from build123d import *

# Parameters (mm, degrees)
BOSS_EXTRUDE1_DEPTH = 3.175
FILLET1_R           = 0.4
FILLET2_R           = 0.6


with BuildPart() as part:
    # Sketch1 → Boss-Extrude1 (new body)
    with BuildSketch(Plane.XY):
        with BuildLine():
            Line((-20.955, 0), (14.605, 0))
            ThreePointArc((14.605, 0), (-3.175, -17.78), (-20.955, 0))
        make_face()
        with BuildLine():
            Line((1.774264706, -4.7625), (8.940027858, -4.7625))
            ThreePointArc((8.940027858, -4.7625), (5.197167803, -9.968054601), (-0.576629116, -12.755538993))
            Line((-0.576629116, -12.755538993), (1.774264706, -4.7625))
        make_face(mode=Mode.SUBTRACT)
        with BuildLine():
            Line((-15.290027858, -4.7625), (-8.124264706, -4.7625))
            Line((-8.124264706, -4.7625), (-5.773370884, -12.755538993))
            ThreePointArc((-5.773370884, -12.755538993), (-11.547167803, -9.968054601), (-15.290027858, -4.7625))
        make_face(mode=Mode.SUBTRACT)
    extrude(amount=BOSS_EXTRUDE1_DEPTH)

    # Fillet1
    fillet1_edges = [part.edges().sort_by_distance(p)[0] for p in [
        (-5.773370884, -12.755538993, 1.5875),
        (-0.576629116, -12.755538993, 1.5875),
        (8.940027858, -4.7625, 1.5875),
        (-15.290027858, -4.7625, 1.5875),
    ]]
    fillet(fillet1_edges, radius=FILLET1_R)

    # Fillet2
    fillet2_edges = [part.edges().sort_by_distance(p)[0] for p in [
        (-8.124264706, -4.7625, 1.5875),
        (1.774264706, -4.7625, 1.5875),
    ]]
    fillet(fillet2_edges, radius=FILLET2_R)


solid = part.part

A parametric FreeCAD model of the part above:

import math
import FreeCAD as App
import Part
import Sketcher
Q = App.Units.Quantity


def edges_at(feature, points):
    """Names of the edges that pass closest to the given points."""
    edges = feature.Shape.Edges
    near = lambda p: min(range(len(edges)), key=lambda i: edges[i].distToShape(Part.Vertex(*p))[0])
    return sorted({f"Edge{near(p) + 1}" for p in points})

doc = App.newDocument("Part")
params = doc.addObject("Spreadsheet::Sheet", "Params")
for row, (alias, value) in enumerate([
    ("sketch1_radius", "0.7 in"),
    ("pad1_length", "0.125 in"),
    ("fillet_radius", "0.4 mm"),
    ("fillet2_radius", "0.6 mm"),
], start=1):
    params.set(f"A{row}", alias)
    params.set(f"B{row}", "=" + value)
    params.setAlias(f"B{row}", alias)

body = doc.addObject("PartDesign::Body", "Body")

# Sketch on XY plane
sketch1 = body.newObject("Sketcher::SketchObject", "Sketch")
sketch1.AttachmentSupport = (doc.getObject("XY_Plane"), [""])
sketch1.MapMode = "FlatFace"
sketch1.addGeometry([
    Part.LineSegment(App.Vector(15, 0, 0), App.Vector(-21, 0, 0)),  # 0
    Part.ArcOfCircle(Part.Circle(App.Vector(-3, 0, 0), App.Vector(0, 0, 1), 18), math.radians(180), math.radians(360)),  # 1
    Part.LineSegment(App.Vector(2, -5, 0), App.Vector(9, -5, 0)),  # 2
    Part.ArcOfCircle(Part.Circle(App.Vector(-3, 0, 0), App.Vector(0, 0, 1), 13), math.radians(-78), math.radians(-21)),  # 3
    Part.LineSegment(App.Vector(-1, -13, 0), App.Vector(2, -5, 0)),  # 4
    Part.LineSegment(App.Vector(-15, -5, 0), App.Vector(-8, -5, 0)),  # 5
    Part.LineSegment(App.Vector(-8, -5, 0), App.Vector(-6, -13, 0)),  # 6
    Part.ArcOfCircle(Part.Circle(App.Vector(-3, 0, 0), App.Vector(0, 0, 1), 13), math.radians(-159), math.radians(-102)),  # 7
], False)
sketch1.addConstraint([
    Sketcher.Constraint("Coincident", 0, 1, 1, 2),
    Sketcher.Constraint("Coincident", 1, 1, 0, 2),
    Sketcher.Constraint("Coincident", 2, 2, 3, 2),
    Sketcher.Constraint("Coincident", 3, 1, 4, 1),
    Sketcher.Constraint("Coincident", 4, 2, 2, 1),
    Sketcher.Constraint("Coincident", 5, 2, 6, 1),
    Sketcher.Constraint("Coincident", 6, 2, 7, 2),
    Sketcher.Constraint("Coincident", 7, 1, 5, 1),
    Sketcher.Constraint("Horizontal", 0),
    Sketcher.Constraint("Horizontal", 2),
    Sketcher.Constraint("Horizontal", 5),
    Sketcher.Constraint("Coincident", 3, 3, 1, 3),
    Sketcher.Constraint("Coincident", 7, 3, 1, 3),
    Sketcher.Constraint("Equal", 3, 7),
    Sketcher.Constraint("PointOnObject", 1, 3, -1),
    Sketcher.Constraint("PointOnObject", 0, 1, -1),
    Sketcher.Constraint("Horizontal", 4, 2, 5, 2),
    Sketcher.Constraint("Horizontal", 3, 1, 6, 2),
    Sketcher.Constraint("Equal", 2, 5),
    Sketcher.Constraint("Radius", 1, Q("0.7 in")),
    Sketcher.Constraint("Radius", 3, Q("0.5125 in")),
    Sketcher.Constraint("DistanceX", 1, 3, -1, 1, Q("0.125 in")),
    Sketcher.Constraint("DistanceY", 2, 2, -1, 1, Q("0.1875 in")),
    Sketcher.Constraint("Distance", 4, 8.331589),
    Sketcher.Constraint("DistanceX", 2, 1, 2, 2, 7.165763),
])
sketch1.setExpression("Constraints[19]", "Params.sketch1_radius")
pad1 = body.newObject("PartDesign::Pad", "Pad")
pad1.Profile = sketch1
pad1.setExpression("Length", "Params.pad1_length")
doc.recompute()

fillet = body.newObject("PartDesign::Fillet", "Fillet")
fillet.Base = (pad1, edges_at(pad1, [
    (-5.773, -12.756, 1.587),
    (-0.577, -12.756, 1.587),
    (8.94, -4.763, 1.587),
    (-15.29, -4.763, 1.587),
]))
fillet.setExpression("Radius", "Params.fillet_radius")
doc.recompute()

fillet2 = body.newObject("PartDesign::Fillet", "Fillet001")
fillet2.Base = (fillet, edges_at(fillet, [(-8.124, -4.763, 1.587), (1.774, -4.763, 1.587)]))
fillet2.setExpression("Radius", "Params.fillet2_radius")

doc.recompute()
